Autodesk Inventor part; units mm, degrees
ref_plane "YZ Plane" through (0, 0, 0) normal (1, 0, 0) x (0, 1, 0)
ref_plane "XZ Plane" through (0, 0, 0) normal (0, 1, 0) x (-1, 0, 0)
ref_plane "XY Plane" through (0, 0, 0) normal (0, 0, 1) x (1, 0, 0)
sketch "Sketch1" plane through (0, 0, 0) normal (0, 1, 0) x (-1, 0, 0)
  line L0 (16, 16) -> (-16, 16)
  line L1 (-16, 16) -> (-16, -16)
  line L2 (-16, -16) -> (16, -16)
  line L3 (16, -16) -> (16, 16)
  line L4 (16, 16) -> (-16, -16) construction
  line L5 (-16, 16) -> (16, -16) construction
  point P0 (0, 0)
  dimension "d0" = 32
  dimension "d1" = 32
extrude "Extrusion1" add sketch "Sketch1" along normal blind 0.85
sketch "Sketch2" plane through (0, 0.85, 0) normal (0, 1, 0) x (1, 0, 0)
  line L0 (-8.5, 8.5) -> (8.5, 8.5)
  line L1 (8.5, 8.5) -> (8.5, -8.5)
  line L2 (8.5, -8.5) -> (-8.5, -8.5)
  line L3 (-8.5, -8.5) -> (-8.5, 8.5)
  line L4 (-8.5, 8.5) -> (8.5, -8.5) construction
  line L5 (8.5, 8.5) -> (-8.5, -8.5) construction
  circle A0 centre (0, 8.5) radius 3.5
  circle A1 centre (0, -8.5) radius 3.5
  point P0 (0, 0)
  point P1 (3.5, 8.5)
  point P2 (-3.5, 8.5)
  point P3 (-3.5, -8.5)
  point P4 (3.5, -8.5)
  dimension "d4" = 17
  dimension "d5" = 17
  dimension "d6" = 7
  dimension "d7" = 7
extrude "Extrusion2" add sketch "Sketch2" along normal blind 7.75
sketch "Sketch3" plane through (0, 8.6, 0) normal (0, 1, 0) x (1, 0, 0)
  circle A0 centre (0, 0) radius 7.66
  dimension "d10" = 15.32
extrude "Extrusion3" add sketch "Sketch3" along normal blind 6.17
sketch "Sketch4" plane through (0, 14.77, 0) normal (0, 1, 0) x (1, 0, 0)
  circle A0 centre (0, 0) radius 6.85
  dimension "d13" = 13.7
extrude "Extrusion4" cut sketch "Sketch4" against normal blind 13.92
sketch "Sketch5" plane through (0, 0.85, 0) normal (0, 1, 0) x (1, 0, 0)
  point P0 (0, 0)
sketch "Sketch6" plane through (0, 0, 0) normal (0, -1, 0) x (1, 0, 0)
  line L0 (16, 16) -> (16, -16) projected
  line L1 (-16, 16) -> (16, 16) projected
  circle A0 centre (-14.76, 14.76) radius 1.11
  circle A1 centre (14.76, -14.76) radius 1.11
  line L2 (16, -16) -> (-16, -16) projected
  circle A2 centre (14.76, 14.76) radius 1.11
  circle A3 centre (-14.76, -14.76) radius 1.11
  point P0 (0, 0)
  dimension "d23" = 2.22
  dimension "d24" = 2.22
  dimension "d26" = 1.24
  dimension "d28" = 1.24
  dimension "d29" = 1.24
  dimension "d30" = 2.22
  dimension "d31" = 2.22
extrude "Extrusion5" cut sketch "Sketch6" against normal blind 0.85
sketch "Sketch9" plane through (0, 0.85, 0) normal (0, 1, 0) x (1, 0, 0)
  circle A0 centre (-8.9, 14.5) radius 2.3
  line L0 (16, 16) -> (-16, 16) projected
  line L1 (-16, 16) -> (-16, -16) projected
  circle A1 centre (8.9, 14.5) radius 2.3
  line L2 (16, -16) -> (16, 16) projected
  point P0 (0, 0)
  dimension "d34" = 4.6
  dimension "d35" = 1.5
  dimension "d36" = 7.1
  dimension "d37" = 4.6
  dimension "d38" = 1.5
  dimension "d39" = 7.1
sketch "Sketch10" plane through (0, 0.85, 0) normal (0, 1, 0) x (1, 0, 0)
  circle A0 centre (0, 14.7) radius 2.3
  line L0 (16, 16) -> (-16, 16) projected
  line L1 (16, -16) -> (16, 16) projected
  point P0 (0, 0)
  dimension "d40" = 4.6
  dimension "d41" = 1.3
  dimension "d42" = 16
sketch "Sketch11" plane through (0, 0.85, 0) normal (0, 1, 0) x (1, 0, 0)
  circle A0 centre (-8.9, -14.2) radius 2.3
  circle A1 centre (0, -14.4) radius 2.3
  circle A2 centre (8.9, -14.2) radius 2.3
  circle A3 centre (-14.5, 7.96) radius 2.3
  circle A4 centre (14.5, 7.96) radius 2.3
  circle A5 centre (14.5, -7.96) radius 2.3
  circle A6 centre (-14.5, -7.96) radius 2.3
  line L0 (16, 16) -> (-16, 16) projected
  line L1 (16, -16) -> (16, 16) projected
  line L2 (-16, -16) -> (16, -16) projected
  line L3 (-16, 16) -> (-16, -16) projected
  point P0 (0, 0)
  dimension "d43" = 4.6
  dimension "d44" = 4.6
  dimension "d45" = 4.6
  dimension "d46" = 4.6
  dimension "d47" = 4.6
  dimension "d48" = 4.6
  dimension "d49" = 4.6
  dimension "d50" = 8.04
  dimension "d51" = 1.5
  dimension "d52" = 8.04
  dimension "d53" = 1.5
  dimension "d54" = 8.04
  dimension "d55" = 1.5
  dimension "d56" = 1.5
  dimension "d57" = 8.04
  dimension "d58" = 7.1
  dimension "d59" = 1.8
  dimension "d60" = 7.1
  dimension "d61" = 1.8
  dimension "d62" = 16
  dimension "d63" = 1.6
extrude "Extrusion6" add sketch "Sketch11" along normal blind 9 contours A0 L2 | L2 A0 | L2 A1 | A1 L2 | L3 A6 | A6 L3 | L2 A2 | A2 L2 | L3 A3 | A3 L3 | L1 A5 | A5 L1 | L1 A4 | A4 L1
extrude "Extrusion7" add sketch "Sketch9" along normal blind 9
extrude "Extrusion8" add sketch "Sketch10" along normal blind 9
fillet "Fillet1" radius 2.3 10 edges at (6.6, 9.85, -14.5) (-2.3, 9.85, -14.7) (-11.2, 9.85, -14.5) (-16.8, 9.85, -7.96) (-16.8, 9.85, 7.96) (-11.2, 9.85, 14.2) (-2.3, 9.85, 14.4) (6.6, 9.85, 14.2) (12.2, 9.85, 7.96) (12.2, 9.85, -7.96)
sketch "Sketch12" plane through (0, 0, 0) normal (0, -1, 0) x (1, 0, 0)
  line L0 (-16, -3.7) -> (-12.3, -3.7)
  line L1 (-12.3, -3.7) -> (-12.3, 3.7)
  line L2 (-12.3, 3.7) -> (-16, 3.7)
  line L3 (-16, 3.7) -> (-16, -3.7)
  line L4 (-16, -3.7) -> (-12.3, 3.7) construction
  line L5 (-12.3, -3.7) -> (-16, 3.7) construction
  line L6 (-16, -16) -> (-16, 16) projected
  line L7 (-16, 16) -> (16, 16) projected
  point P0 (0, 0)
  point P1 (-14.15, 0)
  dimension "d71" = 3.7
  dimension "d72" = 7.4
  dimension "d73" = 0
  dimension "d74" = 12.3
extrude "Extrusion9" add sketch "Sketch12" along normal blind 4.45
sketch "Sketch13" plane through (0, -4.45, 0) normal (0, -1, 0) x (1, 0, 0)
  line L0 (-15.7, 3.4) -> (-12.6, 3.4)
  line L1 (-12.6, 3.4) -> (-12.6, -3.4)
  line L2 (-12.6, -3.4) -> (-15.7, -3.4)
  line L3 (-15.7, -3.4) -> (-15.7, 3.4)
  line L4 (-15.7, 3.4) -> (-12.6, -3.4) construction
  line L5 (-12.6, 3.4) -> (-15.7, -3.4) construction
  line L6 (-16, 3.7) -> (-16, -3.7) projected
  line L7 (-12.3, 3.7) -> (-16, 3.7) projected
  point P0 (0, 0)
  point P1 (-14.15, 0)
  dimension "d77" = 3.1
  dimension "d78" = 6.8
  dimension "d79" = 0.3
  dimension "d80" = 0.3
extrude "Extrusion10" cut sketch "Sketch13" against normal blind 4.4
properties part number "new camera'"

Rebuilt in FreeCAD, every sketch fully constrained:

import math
import FreeCAD as App
import Part
import Sketcher

V = App.Vector


def edges_at(feature, points):
    """Names of the edges that pass closest to the given points."""
    edges = feature.Shape.Edges
    near = lambda p: min(range(len(edges)), key=lambda i: edges[i].distToShape(Part.Vertex(*p))[0])
    return sorted({f"Edge{near(p) + 1}" for p in points})


def add_polygon(sketch, points):
    """Adds a closed chain of lines whose ends are joined by coincident constraints."""
    first, n = sketch.GeometryCount, len(points)
    for a, b in zip(points, points[1:] + points[:1]):
        sketch.addGeometry(Part.LineSegment(App.Vector(*a, 0), App.Vector(*b, 0)), False)
    for i in range(n):
        sketch.addConstraint(Sketcher.Constraint("Coincident", first + i, 2, first + (i + 1) % n, 1))

doc = App.newDocument("Part")
body = doc.addObject("PartDesign::Body", "Body")

# Sketch on XZ plane
sketch1 = body.newObject("Sketcher::SketchObject", "Sketch")
sketch1.AttachmentSupport = (doc.getObject("XZ_Plane"), [""])
sketch1.MapMode = "FlatFace"
add_polygon(sketch1, [(-16, -16), (-16, 16), (16, 16), (16, -16)])  # lines 0-3
sketch1.addConstraint([
    Sketcher.Constraint("Vertical", 0),
    Sketcher.Constraint("Horizontal", 1),
    Sketcher.Constraint("Vertical", 2),
    Sketcher.Constraint("Horizontal", 3),
    Sketcher.Constraint("Symmetric", 0, 2, 2, 2, -1, 1),
    Sketcher.Constraint("Equal", 3, 0),
    Sketcher.Constraint("DistanceX", 1, 1, 1, 2, 32.0),
])
pad1 = body.newObject("PartDesign::Pad", "Pad")
pad1.Profile = sketch1
pad1.Length = 0.85
pad1.Reversed = True

# Sketch on XZ plane
sketch2 = body.newObject("Sketcher::SketchObject", "Sketch001")
sketch2.AttachmentSupport = (doc.getObject("XZ_Plane"), [""])
sketch2.MapMode = "FlatFace"
sketch2.AttachmentOffset = App.Placement(V(0, 0, -0.85), App.Rotation())
sketch2.addGeometry([
    Part.LineSegment(V(8.5, -8.5, 0), V(3.5, -8.5, 0)),  # 0
    Part.ArcOfCircle(Part.Circle(V(0, -8.5, 0), V(0, 0, 1), 3.5), math.radians(180), math.radians(360)),  # 1
    Part.LineSegment(V(-3.5, -8.5, 0), V(-8.5, -8.5, 0)),  # 2
    Part.LineSegment(V(-8.5, -8.5, 0), V(-8.5, 8.5, 0)),  # 3
    Part.LineSegment(V(-8.5, 8.5, 0), V(-3.5, 8.5, 0)),  # 4
    Part.ArcOfCircle(Part.Circle(V(0, 8.5, 0), V(0, 0, 1), 3.5), math.radians(0), math.radians(180)),  # 5
    Part.LineSegment(V(3.5, 8.5, 0), V(8.5, 8.5, 0)),  # 6
    Part.LineSegment(V(8.5, 8.5, 0), V(8.5, -8.5, 0)),  # 7
], False)
sketch2.addConstraint([
    Sketcher.Constraint("Coincident", 0, 2, 1, 2),
    Sketcher.Constraint("Coincident", 1, 1, 2, 1),
    Sketcher.Constraint("Coincident", 2, 2, 3, 1),
    Sketcher.Constraint("Coincident", 3, 2, 4, 1),
    Sketcher.Constraint("Coincident", 4, 2, 5, 2),
    Sketcher.Constraint("Coincident", 5, 1, 6, 1),
    Sketcher.Constraint("Coincident", 6, 2, 7, 1),
    Sketcher.Constraint("Coincident", 7, 2, 0, 1),
    Sketcher.Constraint("Horizontal", 0),
    Sketcher.Constraint("Horizontal", 2),
    Sketcher.Constraint("Vertical", 3),
    Sketcher.Constraint("Horizontal", 4),
    Sketcher.Constraint("Horizontal", 6),
    Sketcher.Constraint("Vertical", 7),
    Sketcher.Constraint("Equal", 1, 5),
    Sketcher.Constraint("Symmetric", 1, 3, 5, 3, -1, 1),
    Sketcher.Constraint("Symmetric", 2, 2, 6, 2, -1, 1),
    Sketcher.Constraint("Symmetric", 0, 2, 1, 1, -2),
    Sketcher.Constraint("Horizontal", 1, 3, 0, 2),
    Sketcher.Constraint("Horizontal", 5, 3, 3, 2),
    Sketcher.Constraint("Radius", 1, 3.5),
    Sketcher.Constraint("DistanceY", 3, 1, 3, 2, 17.0),
    Sketcher.Constraint("DistanceX", 3, 2, 6, 2, 17.0),
])
pad2 = body.newObject("PartDesign::Pad", "Pad001")
pad2.Profile = sketch2
pad2.Length = 7.75
pad2.Reversed = True

# Sketch on XZ plane
sketch3 = body.newObject("Sketcher::SketchObject", "Sketch002")
sketch3.AttachmentSupport = (doc.getObject("XZ_Plane"), [""])
sketch3.MapMode = "FlatFace"
sketch3.AttachmentOffset = App.Placement(V(0, 0, -8.6), App.Rotation())
sketch3.addGeometry(Part.Circle(V(0, 0, 0), V(0, 0, 1), 8), False)
sketch3.addConstraint([
    Sketcher.Constraint("Coincident", 0, 3, -1, 1),
    Sketcher.Constraint("Diameter", 0, 15.32),
])
pad3 = body.newObject("PartDesign::Pad", "Pad002")
pad3.Profile = sketch3
pad3.Length = 6.17
pad3.Reversed = True

# Sketch on XZ plane
sketch4 = body.newObject("Sketcher::SketchObject", "Sketch003")
sketch4.AttachmentSupport = (doc.getObject("XZ_Plane"), [""])
sketch4.MapMode = "FlatFace"
sketch4.AttachmentOffset = App.Placement(V(0, 0, -14.77), App.Rotation())
sketch4.addGeometry(Part.Circle(V(0, 0, 0), V(0, 0, 1), 7), False)
sketch4.addConstraint([
    Sketcher.Constraint("Coincident", 0, 3, -1, 1),
    Sketcher.Constraint("Diameter", 0, 13.7),
])
pocket1 = body.newObject("PartDesign::Pocket", "Pocket")
pocket1.Profile = sketch4
pocket1.Length = 13.92
pocket1.Reversed = True

# Sketch on XZ plane
sketch5 = body.newObject("Sketcher::SketchObject", "Sketch004")
sketch5.AttachmentSupport = (doc.getObject("XZ_Plane"), [""])
sketch5.MapMode = "FlatFace"
sketch5.addGeometry([
    Part.Circle(V(-14.8, 14.8, 0), V(0, 0, 1), 1.1),
    Part.Circle(V(14.8, -14.8, 0), V(0, 0, 1), 1.1),
    Part.Circle(V(14.8, 14.8, 0), V(0, 0, 1), 1.1),
    Part.Circle(V(-14.8, -14.8, 0), V(0, 0, 1), 1.1),
], False)
sketch5.addConstraint([
    Sketcher.Constraint("Equal", 0, 1),
    Sketcher.Constraint("Equal", 1, 2),
    Sketcher.Constraint("Equal", 2, 3),
    Sketcher.Constraint("Symmetric", 0, 3, 1, 3, -1, 1),
    Sketcher.Constraint("Symmetric", 2, 3, 3, 3, -1, 1),
    Sketcher.Constraint("Symmetric", 0, 3, 2, 3, -2),
    Sketcher.Constraint("Diameter", 0, 2.22),
    Sketcher.Constraint("DistanceX", 0, 3, -1, 1, 14.76),
    Sketcher.Constraint("DistanceY", -1, 1, 0, 3, 14.76),
])
pocket2 = body.newObject("PartDesign::Pocket", "Pocket001")
pocket2.Profile = sketch5
pocket2.Length = 0.85

# Sketch on XZ plane
sketch6 = body.newObject("Sketcher::SketchObject", "Sketch005")
sketch6.AttachmentSupport = (doc.getObject("XZ_Plane"), [""])
sketch6.MapMode = "FlatFace"
sketch6.AttachmentOffset = App.Placement(V(0, 0, -0.85), App.Rotation())
sketch6.addGeometry([
    Part.Circle(V(-8.9, 14.2, 0), V(0, 0, 1), 2.3),  # 0
    Part.Circle(V(0, 14.4, 0), V(0, 0, 1), 2.3),  # 1
    Part.Circle(V(-14.5, 8, 0), V(0, 0, 1), 2.3),  # 2
    Part.Circle(V(8.9, 14.2, 0), V(0, 0, 1), 2.3),  # 3
    Part.Circle(V(-14.5, -8, 0), V(0, 0, 1), 2.3),  # 4
    Part.Circle(V(14.5, 8, 0), V(0, 0, 1), 2.3),  # 5
    Part.Circle(V(14.5, -8, 0), V(0, 0, 1), 2.3),  # 6
], False)
sketch6.addConstraint([
    Sketcher.Constraint("Equal", 0, 1),
    Sketcher.Constraint("Equal", 1, 2),
    Sketcher.Constraint("Equal", 2, 3),
    Sketcher.Constraint("Equal", 3, 4),
    Sketcher.Constraint("Equal", 4, 5),
    Sketcher.Constraint("Equal", 5, 6),
    Sketcher.Constraint("Symmetric", 4, 3, 5, 3, -1, 1),
    Sketcher.Constraint("Symmetric", 2, 3, 6, 3, -1, 1),
    Sketcher.Constraint("Symmetric", 0, 3, 3, 3, -2),
    Sketcher.Constraint("Symmetric", 2, 3, 5, 3, -2),
    Sketcher.Constraint("PointOnObject", 1, 3, -2),
    Sketcher.Constraint("Diameter", 0, 4.6),
    Sketcher.Constraint("DistanceX", 2, 3, 5, 3, 29.0),
    Sketcher.Constraint("DistanceX", 0, 3, -1, 1, 8.9),
    Sketcher.Constraint("DistanceY", -1, 1, 0, 3, 14.2),
    Sketcher.Constraint("DistanceY", -1, 1, 1, 3, 14.4),
    Sketcher.Constraint("DistanceY", -1, 1, 2, 3, 7.96),
])
pad4 = body.newObject("PartDesign::Pad", "Pad003")
pad4.Profile = sketch6
pad4.Length = 9
pad4.Reversed = True

# Sketch on XZ plane
sketch7 = body.newObject("Sketcher::SketchObject", "Sketch006")
sketch7.AttachmentSupport = (doc.getObject("XZ_Plane"), [""])
sketch7.MapMode = "FlatFace"
sketch7.AttachmentOffset = App.Placement(V(0, 0, -0.85), App.Rotation())
sketch7.addGeometry([
    Part.Circle(V(-8.9, -14.5, 0), V(0, 0, 1), 2.3),
    Part.Circle(V(8.9, -14.5, 0), V(0, 0, 1), 2.3),
], False)
sketch7.addConstraint([
    Sketcher.Constraint("Equal", 0, 1),
    Sketcher.Constraint("Symmetric", 0, 3, 1, 3, -2),
    Sketcher.Constraint("Diameter", 0, 4.6),
    Sketcher.Constraint("DistanceX", 0, 3, -1, 1, 8.9),
    Sketcher.Constraint("DistanceY", 0, 3, -1, 1, 14.5),
])
pad5 = body.newObject("PartDesign::Pad", "Pad004")
pad5.Profile = sketch7
pad5.Length = 9
pad5.Reversed = True

# Sketch on XZ plane
sketch8 = body.newObject("Sketcher::SketchObject", "Sketch007")
sketch8.AttachmentSupport = (doc.getObject("XZ_Plane"), [""])
sketch8.MapMode = "FlatFace"
sketch8.AttachmentOffset = App.Placement(V(0, 0, -0.85), App.Rotation())
sketch8.addGeometry(Part.Circle(V(0, -14.7, 0), V(0, 0, 1), 2.3), False)
sketch8.addConstraint([
    Sketcher.Constraint("PointOnObject", 0, 3, -2),
    Sketcher.Constraint("Diameter", 0, 4.6),
    Sketcher.Constraint("DistanceY", 0, 3, -1, 1, 14.7),
])
pad6 = body.newObject("PartDesign::Pad", "Pad005")
pad6.Profile = sketch8
pad6.Length = 9
pad6.Reversed = True
doc.recompute()

fillet = body.newObject("PartDesign::Fillet", "Fillet")
fillet.Base = (pad6, edges_at(pad6, [
    (6.6, 9.85, -14.5),
    (-2.3, 9.85, -14.7),
    (-11.2, 9.85, -14.5),
    (-16.8, 9.85, -7.96),
    (-16.8, 9.85, 7.96),
    (-11.2, 9.85, 14.2),
    (-2.3, 9.85, 14.4),
    (6.6, 9.85, 14.2),
    (12.2, 9.85, 7.96),
    (12.2, 9.85, -7.96),
]))
fillet.Radius = 2.3

# Sketch on XZ plane
sketch9 = body.newObject("Sketcher::SketchObject", "Sketch008")
sketch9.AttachmentSupport = (doc.getObject("XZ_Plane"), [""])
sketch9.MapMode = "FlatFace"
add_polygon(sketch9, [(-16, 3.7), (-16, -3.7), (-12.3, -3.7), (-12.3, 3.7)])  # lines 0-3
sketch9.addConstraint([
    Sketcher.Constraint("Vertical", 0),
    Sketcher.Constraint("Horizontal", 1),
    Sketcher.Constraint("Vertical", 2),
    Sketcher.Constraint("Horizontal", 3),
    Sketcher.Constraint("DistanceX", 1, 1, 1, 2, 3.7),
    Sketcher.Constraint("DistanceY", 0, 2, 0, 1, 7.4),
    Sketcher.Constraint("DistanceY", 0, 2, -1, 1, 3.7),
    Sketcher.Constraint("DistanceX", 1, 2, -1, 1, 12.3),
])
pad7 = body.newObject("PartDesign::Pad", "Pad006")
pad7.Profile = sketch9
pad7.Length = 4.45

# Sketch on XZ plane
sketch10 = body.newObject("Sketcher::SketchObject", "Sketch009")
sketch10.AttachmentSupport = (doc.getObject("XZ_Plane"), [""])
sketch10.MapMode = "FlatFace"
sketch10.AttachmentOffset = App.Placement(V(0, 0, 4.45), App.Rotation())
add_polygon(sketch10, [(-12.6, 3.4), (-15.7, 3.4), (-15.7, -3.4), (-12.6, -3.4)])  # lines 0-3
sketch10.addConstraint([
    Sketcher.Constraint("Horizontal", 0),
    Sketcher.Constraint("Vertical", 1),
    Sketcher.Constraint("Horizontal", 2),
    Sketcher.Constraint("Vertical", 3),
    Sketcher.Constraint("DistanceX", 0, 2, 0, 1, 3.1),
    Sketcher.Constraint("DistanceY", 1, 2, 1, 1, 6.8),
    Sketcher.Constraint("DistanceX", 0, 2, -1, 1, 15.7),
    Sketcher.Constraint("DistanceY", -1, 1, 0, 2, 3.4),
])
pocket3 = body.newObject("PartDesign::Pocket", "Pocket002")
pocket3.Profile = sketch10
pocket3.Length = 4.4

doc.recompute()
